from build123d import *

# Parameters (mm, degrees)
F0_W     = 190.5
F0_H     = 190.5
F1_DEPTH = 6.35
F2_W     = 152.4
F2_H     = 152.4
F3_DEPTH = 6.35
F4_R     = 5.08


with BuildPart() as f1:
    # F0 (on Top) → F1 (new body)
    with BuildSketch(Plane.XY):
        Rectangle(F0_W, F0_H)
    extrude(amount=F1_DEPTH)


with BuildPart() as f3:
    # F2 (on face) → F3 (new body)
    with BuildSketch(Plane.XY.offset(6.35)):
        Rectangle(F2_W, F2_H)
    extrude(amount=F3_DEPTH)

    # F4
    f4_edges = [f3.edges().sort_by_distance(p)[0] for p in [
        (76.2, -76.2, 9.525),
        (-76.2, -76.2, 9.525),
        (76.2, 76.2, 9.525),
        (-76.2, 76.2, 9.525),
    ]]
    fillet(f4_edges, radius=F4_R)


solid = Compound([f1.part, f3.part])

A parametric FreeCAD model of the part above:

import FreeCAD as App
import Part
import Sketcher
from FreeCAD import Vector
Q = App.Units.Quantity


def edges_at(feature, points):
    """Names of the edges that pass closest to the given points."""
    edges = feature.Shape.Edges
    near = lambda p: min(range(len(edges)), key=lambda i: edges[i].distToShape(Part.Vertex(*p))[0])
    return sorted({f"Edge{near(p) + 1}" for p in points})

doc = App.newDocument("Part")
params = doc.addObject("Spreadsheet::Sheet", "Params")
for row, (alias, value) in enumerate([
    ("sketch1_width", "7.5 in"),
    ("pad1_length", "0.25 in"),
    ("sketch2_width", "6 in"),
    ("pad2_length", "0.25 in"),
    ("fillet_radius", "0.2 in"),
], start=1):
    params.set(f"A{row}", alias)
    params.set(f"B{row}", "=" + value)
    params.setAlias(f"B{row}", alias)

body = doc.addObject("PartDesign::Body", "Body")

sketch1 = doc.addObject("Sketcher::SketchObject", "Sketch")
body.addObject(sketch1)
sketch1.AttachmentSupport = (doc.XY_Plane, [""])
sketch1.MapMode = "FlatFace"
sketch1.addGeometry([
    Part.LineSegment(Vector(-95, 95, 0), Vector(-95, -95, 0)),
    Part.LineSegment(Vector(-95, -95, 0), Vector(95, -95, 0)),
    Part.LineSegment(Vector(95, -95, 0), Vector(95, 95, 0)),
    Part.LineSegment(Vector(95, 95, 0), Vector(-95, 95, 0)),
], False)
sketch1.addConstraint([
    Sketcher.Constraint("Coincident", 0, 2, 1, 1),
    Sketcher.Constraint("Coincident", 1, 2, 2, 1),
    Sketcher.Constraint("Coincident", 2, 2, 3, 1),
    Sketcher.Constraint("Coincident", 3, 2, 0, 1),
    Sketcher.Constraint("Vertical", 0),
    Sketcher.Constraint("Horizontal", 1),
    Sketcher.Constraint("Vertical", 2),
    Sketcher.Constraint("Horizontal", 3),
    Sketcher.Constraint("Symmetric", 0, 2, 2, 2, -1, 1),
    Sketcher.Constraint("Equal", 3, 0),
    Sketcher.Constraint("DistanceX", 1, 1, 1, 2, Q("7.5 in")),
])
sketch1.setExpression("Constraints[10]", "Params.sketch1_width")
pad1 = doc.addObject("PartDesign::Pad", "Pad")
body.addObject(pad1)
pad1.Profile = sketch1
pad1.setExpression("Length", "Params.pad1_length")
body2 = doc.addObject("PartDesign::Body", "Body001")

sketch2 = doc.addObject("Sketcher::SketchObject", "Sketch001")
body2.addObject(sketch2)
sketch2.AttachmentSupport = (doc.getObject("XY_Plane001"), [""])
sketch2.MapMode = "FlatFace"
sketch2.AttachmentOffset = App.Placement(Vector(0, 0, 0.25 * 25.4), App.Rotation())
sketch2.addGeometry([
    Part.LineSegment(Vector(-76, 76, 0), Vector(-76, -76, 0)),
    Part.LineSegment(Vector(-76, -76, 0), Vector(76, -76, 0)),
    Part.LineSegment(Vector(76, -76, 0), Vector(76, 76, 0)),
    Part.LineSegment(Vector(76, 76, 0), Vector(-76, 76, 0)),
], False)
sketch2.addConstraint([
    Sketcher.Constraint("Coincident", 0, 2, 1, 1),
    Sketcher.Constraint("Coincident", 1, 2, 2, 1),
    Sketcher.Constraint("Coincident", 2, 2, 3, 1),
    Sketcher.Constraint("Coincident", 3, 2, 0, 1),
    Sketcher.Constraint("Vertical", 0),
    Sketcher.Constraint("Horizontal", 1),
    Sketcher.Constraint("Vertical", 2),
    Sketcher.Constraint("Horizontal", 3),
    Sketcher.Constraint("Symmetric", 0, 2, 2, 2, -1, 1),
    Sketcher.Constraint("Equal", 3, 0),
    Sketcher.Constraint("DistanceX", 1, 1, 1, 2, Q("6 in")),
])
sketch2.setExpression("Constraints[10]", "Params.sketch2_width")
pad2 = doc.addObject("PartDesign::Pad", "Pad001")
body2.addObject(pad2)
pad2.Profile = sketch2
pad2.setExpression("Length", "Params.pad2_length")
doc.recompute()

fillet = doc.addObject("PartDesign::Fillet", "Fillet")
body2.addObject(fillet)
fillet.Base = (pad2, edges_at(pad2, [
    (76.2, -76.2, 9.525),
    (-76.2, -76.2, 9.525),
    (76.2, 76.2, 9.525),
    (-76.2, 76.2, 9.525),
]))
fillet.setExpression("Radius", "Params.fillet_radius")

doc.recompute()
